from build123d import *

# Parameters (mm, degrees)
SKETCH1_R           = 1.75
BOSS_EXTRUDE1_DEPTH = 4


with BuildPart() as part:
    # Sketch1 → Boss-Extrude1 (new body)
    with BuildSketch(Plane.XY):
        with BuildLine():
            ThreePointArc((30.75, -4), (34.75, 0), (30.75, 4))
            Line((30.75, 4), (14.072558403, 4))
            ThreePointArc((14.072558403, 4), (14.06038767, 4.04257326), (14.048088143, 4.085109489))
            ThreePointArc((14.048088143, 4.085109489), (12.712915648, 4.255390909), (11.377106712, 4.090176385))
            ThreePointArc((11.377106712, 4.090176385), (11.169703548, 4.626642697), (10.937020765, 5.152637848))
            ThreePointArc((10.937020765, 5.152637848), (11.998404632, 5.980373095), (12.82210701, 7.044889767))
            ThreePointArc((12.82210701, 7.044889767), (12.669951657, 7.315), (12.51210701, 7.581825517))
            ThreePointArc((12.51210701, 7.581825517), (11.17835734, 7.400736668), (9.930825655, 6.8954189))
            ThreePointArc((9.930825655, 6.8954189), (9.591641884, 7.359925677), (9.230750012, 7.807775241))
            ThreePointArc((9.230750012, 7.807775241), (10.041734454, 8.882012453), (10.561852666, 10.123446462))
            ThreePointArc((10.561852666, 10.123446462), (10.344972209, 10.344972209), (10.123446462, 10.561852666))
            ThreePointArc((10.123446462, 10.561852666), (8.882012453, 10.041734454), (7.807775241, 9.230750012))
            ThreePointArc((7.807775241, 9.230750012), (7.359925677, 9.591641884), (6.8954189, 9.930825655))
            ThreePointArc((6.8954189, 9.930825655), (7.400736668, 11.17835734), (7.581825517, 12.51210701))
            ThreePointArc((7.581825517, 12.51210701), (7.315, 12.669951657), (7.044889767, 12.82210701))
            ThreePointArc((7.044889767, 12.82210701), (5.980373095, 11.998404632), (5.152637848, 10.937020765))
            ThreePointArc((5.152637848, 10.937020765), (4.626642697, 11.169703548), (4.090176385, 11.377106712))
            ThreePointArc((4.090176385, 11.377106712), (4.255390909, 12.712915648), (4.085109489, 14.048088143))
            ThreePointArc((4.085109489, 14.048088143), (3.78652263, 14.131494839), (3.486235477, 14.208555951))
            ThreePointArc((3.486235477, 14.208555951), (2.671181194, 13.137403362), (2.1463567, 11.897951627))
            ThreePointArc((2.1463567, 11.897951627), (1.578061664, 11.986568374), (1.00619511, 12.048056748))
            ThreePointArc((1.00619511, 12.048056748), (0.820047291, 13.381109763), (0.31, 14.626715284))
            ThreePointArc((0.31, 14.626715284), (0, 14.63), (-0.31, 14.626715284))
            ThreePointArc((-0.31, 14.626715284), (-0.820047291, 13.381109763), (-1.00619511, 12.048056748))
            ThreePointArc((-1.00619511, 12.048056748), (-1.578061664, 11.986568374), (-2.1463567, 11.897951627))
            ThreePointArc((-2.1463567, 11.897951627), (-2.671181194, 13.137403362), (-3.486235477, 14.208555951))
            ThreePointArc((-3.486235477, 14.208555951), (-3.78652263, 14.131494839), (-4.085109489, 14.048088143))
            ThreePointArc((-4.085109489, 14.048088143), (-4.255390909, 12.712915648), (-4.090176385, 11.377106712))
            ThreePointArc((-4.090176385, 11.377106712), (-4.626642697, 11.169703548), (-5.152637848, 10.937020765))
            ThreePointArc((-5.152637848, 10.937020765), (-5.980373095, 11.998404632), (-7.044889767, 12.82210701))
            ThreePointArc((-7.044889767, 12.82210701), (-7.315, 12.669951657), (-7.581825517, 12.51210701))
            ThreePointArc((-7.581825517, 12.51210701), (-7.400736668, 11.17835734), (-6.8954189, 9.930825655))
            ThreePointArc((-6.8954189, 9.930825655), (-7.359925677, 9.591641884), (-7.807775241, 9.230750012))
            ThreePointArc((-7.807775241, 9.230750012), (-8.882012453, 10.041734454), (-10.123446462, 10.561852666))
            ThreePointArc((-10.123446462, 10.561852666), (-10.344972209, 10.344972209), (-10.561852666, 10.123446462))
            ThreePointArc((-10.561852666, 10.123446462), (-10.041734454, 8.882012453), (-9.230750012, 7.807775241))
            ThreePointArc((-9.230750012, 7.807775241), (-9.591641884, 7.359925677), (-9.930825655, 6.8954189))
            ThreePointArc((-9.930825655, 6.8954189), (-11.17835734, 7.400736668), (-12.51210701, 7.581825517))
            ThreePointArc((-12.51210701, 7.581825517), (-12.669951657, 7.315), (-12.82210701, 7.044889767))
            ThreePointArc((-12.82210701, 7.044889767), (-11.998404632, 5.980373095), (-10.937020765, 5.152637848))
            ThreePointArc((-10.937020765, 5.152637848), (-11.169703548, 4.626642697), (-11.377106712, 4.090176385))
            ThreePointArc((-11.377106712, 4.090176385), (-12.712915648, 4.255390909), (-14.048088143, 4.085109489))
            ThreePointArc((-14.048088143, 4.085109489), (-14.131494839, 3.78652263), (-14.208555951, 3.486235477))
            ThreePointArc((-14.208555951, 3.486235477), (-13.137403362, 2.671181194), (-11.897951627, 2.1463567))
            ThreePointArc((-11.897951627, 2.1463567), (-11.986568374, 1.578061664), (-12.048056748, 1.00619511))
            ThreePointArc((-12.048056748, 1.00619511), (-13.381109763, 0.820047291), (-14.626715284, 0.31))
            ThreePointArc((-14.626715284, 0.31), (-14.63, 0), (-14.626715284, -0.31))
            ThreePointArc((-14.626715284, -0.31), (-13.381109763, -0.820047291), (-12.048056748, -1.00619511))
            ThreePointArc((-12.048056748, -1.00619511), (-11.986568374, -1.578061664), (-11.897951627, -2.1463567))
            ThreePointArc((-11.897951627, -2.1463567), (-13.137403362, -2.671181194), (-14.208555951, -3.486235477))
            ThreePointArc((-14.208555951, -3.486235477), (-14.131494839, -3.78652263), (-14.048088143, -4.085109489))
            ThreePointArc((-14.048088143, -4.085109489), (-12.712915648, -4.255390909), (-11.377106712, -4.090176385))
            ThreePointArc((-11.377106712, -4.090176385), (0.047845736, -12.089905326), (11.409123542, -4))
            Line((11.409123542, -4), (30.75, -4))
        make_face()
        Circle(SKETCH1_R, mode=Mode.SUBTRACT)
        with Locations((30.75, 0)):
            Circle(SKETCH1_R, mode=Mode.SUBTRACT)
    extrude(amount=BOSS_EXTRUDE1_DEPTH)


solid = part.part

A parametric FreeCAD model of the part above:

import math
import FreeCAD as App
import Part
import Sketcher

V = App.Vector
Q = App.Units.Quantity

doc = App.newDocument("Part")
body = doc.addObject("PartDesign::Body", "Body")

# Sketch on XY plane
sketch1 = body.newObject("Sketcher::SketchObject", "Sketch")
sketch1.AttachmentSupport = (doc.getObject("XY_Plane"), [""])
sketch1.MapMode = "FlatFace"
sketch1.addGeometry(Part.ArcOfCircle(Part.Circle(V(30.75, 0, 0), V(0, 0, 1), 4), math.radians(-90), math.radians(90)), False)
sketch1.addGeometry(Part.LineSegment(V(30.75, 4, 0), V(14.072558, 4, 0)), False)
sketch1.addGeometry(Part.ArcOfCircle(Part.Circle(V(-0.000108, -0.000031, 0), V(0, 0, 1), 14.630112), math.radians(15.867332), math.radians(16.214149)), False)
sketch1.addGeometry(Part.ArcOfCircle(Part.Circle(V(12.702672, -1.144599, 0), V(0, 0, 1), 5.4), math.radians(75.572711), math.radians(104.209907)), False)
sketch1.addGeometry(Part.ArcOfCircle(Part.Circle(V(0, 0, 0), V(0, 0, 1), 12.09), math.radians(19.773986), math.radians(25.226014)), False)
sketch1.addGeometry(Part.ArcOfCircle(Part.Circle(V(8.172791, 9.791499, 0), V(0, 0, 1), 5.4), math.radians(-59.209907), math.radians(-30.572711)), False)
sketch1.addGeometry(Part.ArcOfCircle(Part.Circle(V(-0.000002, -0.000001, 0), V(0, 0, 1), 14.630002), math.radians(28.78585), math.radians(31.21415)), False)
sketch1.addGeometry(Part.ArcOfCircle(Part.Circle(V(12.566083, 2.182095, 0), V(0, 0, 1), 5.4), math.radians(90.572711), math.radians(119.209907)), False)
sketch1.addGeometry(Part.ArcOfCircle(Part.Circle(V(0, 0, 0), V(0, 0, 1), 12.09), math.radians(34.773986), math.radians(40.226014)), False)
sketch1.addGeometry(Part.ArcOfCircle(Part.Circle(V(5.360084, 11.573136, 0), V(0, 0, 1), 5.4), math.radians(-44.209907), math.radians(-15.572711)), False)
sketch1.addGeometry(Part.ArcOfCircle(Part.Circle(V(0, 0, 0), V(0, 0, 1), 14.63), math.radians(43.78585), math.radians(46.21415)), False)
sketch1.addGeometry(Part.ArcOfCircle(Part.Circle(V(11.573136, 5.360084, 0), V(0, 0, 1), 5.4), math.radians(105.572711), math.radians(134.209907)), False)
sketch1.addGeometry(Part.ArcOfCircle(Part.Circle(V(0, 0, 0), V(0, 0, 1), 12.09), math.radians(49.773986), math.radians(55.226014)), False)
sketch1.addGeometry(Part.ArcOfCircle(Part.Circle(V(2.182095, 12.566083, 0), V(0, 0, 1), 5.4), math.radians(-29.209907), math.radians(-0.572711)), False)
sketch1.addGeometry(Part.ArcOfCircle(Part.Circle(V(-0.000001, -0.000002, 0), V(0, 0, 1), 14.630002), math.radians(58.78585), math.radians(61.21415)), False)
sketch1.addGeometry(Part.ArcOfCircle(Part.Circle(V(9.791499, 8.172791, 0), V(0, 0, 1), 5.4), math.radians(120.572711), math.radians(149.209907)), False)
sketch1.addGeometry(Part.ArcOfCircle(Part.Circle(V(0, 0, 0), V(0, 0, 1), 12.09), math.radians(64.773986), math.radians(70.226014)), False)
sketch1.addGeometry(Part.ArcOfCircle(Part.Circle(V(-1.144599, 12.702672, 0), V(0, 0, 1), 5.4), math.radians(-14.209907), math.radians(14.427289)), False)
sketch1.addGeometry(Part.ArcOfCircle(Part.Circle(V(0, 0, 0), V(0, 0, 1), 14.63), math.radians(73.78585), math.radians(76.21415)), False)
sketch1.addGeometry(Part.ArcOfCircle(Part.Circle(V(7.342588, 10.428537, 0), V(0, 0, 1), 5.4), math.radians(135.572711), math.radians(164.209907)), False)
sketch1.addGeometry(Part.ArcOfCircle(Part.Circle(V(0, 0, 0), V(0, 0, 1), 12.09), math.radians(79.773986), math.radians(85.226014)), False)
sketch1.addGeometry(Part.ArcOfCircle(Part.Circle(V(-4.393291, 11.973595, 0), V(0, 0, 1), 5.4), math.radians(0.790093), math.radians(29.427289)), False)
sketch1.addGeometry(Part.ArcOfCircle(Part.Circle(V(0, 0, 0), V(0, 0, 1), 14.63), math.radians(88.78585), math.radians(91.21415)), False)
sketch1.addGeometry(Part.ArcOfCircle(Part.Circle(V(4.393291, 11.973595, 0), V(0, 0, 1), 5.4), math.radians(150.572711), math.radians(179.209907)), False)
sketch1.addGeometry(Part.ArcOfCircle(Part.Circle(V(0, 0, 0), V(0, 0, 1), 12.09), math.radians(94.773986), math.radians(100.226014)), False)
sketch1.addGeometry(Part.ArcOfCircle(Part.Circle(V(-7.342588, 10.428537, 0), V(0, 0, 1), 5.4), math.radians(15.790093), math.radians(44.427289)), False)
sketch1.addGeometry(Part.ArcOfCircle(Part.Circle(V(0, 0, 0), V(0, 0, 1), 14.63), math.radians(103.78585), math.radians(106.21415)), False)
sketch1.addGeometry(Part.ArcOfCircle(Part.Circle(V(1.144599, 12.702672, 0), V(0, 0, 1), 5.4), math.radians(165.572711), math.radians(194.209907)), False)
sketch1.addGeometry(Part.ArcOfCircle(Part.Circle(V(0, 0, 0), V(0, 0, 1), 12.09), math.radians(109.773986), math.radians(115.226014)), False)
sketch1.addGeometry(Part.ArcOfCircle(Part.Circle(V(-9.791499, 8.172791, 0), V(0, 0, 1), 5.4), math.radians(30.790093), math.radians(59.427289)), False)
sketch1.addGeometry(Part.ArcOfCircle(Part.Circle(V(0.000001, -0.000002, 0), V(0, 0, 1), 14.630002), math.radians(118.78585), math.radians(121.21415)), False)
sketch1.addGeometry(Part.ArcOfCircle(Part.Circle(V(-2.182095, 12.566083, 0), V(0, 0, 1), 5.4), math.radians(-179.427289), math.radians(-150.790093)), False)
sketch1.addGeometry(Part.ArcOfCircle(Part.Circle(V(0, 0, 0), V(0, 0, 1), 12.09), math.radians(124.773986), math.radians(130.226014)), False)
sketch1.addGeometry(Part.ArcOfCircle(Part.Circle(V(-11.573136, 5.360084, 0), V(0, 0, 1), 5.4), math.radians(45.790093), math.radians(74.427289)), False)
sketch1.addGeometry(Part.ArcOfCircle(Part.Circle(V(0, 0, 0), V(0, 0, 1), 14.63), math.radians(133.78585), math.radians(136.21415)), False)
sketch1.addGeometry(Part.ArcOfCircle(Part.Circle(V(-5.360084, 11.573136, 0), V(0, 0, 1), 5.4), math.radians(-164.427289), math.radians(-135.790093)), False)
sketch1.addGeometry(Part.ArcOfCircle(Part.Circle(V(0, 0, 0), V(0, 0, 1), 12.09), math.radians(139.773986), math.radians(145.226014)), False)
sketch1.addGeometry(Part.ArcOfCircle(Part.Circle(V(-12.566083, 2.182095, 0), V(0, 0, 1), 5.4), math.radians(60.790093), math.radians(89.427289)), False)
sketch1.addGeometry(Part.ArcOfCircle(Part.Circle(V(0.000002, -0.000001, 0), V(0, 0, 1), 14.630002), math.radians(148.78585), math.radians(151.21415)), False)
sketch1.addGeometry(Part.ArcOfCircle(Part.Circle(V(-8.172791, 9.791499, 0), V(0, 0, 1), 5.4), math.radians(-149.427289), math.radians(-120.790093)), False)
sketch1.addGeometry(Part.ArcOfCircle(Part.Circle(V(0, 0, 0), V(0, 0, 1), 12.09), math.radians(154.773986), math.radians(160.226014)), False)
sketch1.addGeometry(Part.ArcOfCircle(Part.Circle(V(-12.702672, -1.144599, 0), V(0, 0, 1), 5.4), math.radians(75.790093), math.radians(104.427289)), False)
sketch1.addGeometry(Part.ArcOfCircle(Part.Circle(V(0, 0, 0), V(0, 0, 1), 14.63), math.radians(163.78585), math.radians(166.21415)), False)
sketch1.addGeometry(Part.ArcOfCircle(Part.Circle(V(-10.428537, 7.342588, 0), V(0, 0, 1), 5.4), math.radians(-134.427289), math.radians(-105.790093)), False)
sketch1.addGeometry(Part.ArcOfCircle(Part.Circle(V(0, 0, 0), V(0, 0, 1), 12.09), math.radians(169.773986), math.radians(175.226014)), False)
sketch1.addGeometry(Part.ArcOfCircle(Part.Circle(V(-11.973595, -4.393291, 0), V(0, 0, 1), 5.4), math.radians(90.790093), math.radians(119.427289)), False)
sketch1.addGeometry(Part.ArcOfCircle(Part.Circle(V(0, 0, 0), V(0, 0, 1), 14.63), math.radians(178.78585), math.radians(181.21415)), False)
sketch1.addGeometry(Part.ArcOfCircle(Part.Circle(V(-11.973595, 4.393291, 0), V(0, 0, 1), 5.4), math.radians(-119.427289), math.radians(-90.790093)), False)
sketch1.addGeometry(Part.ArcOfCircle(Part.Circle(V(0, 0, 0), V(0, 0, 1), 12.09), math.radians(-175.226014), math.radians(-169.773986)), False)
sketch1.addGeometry(Part.ArcOfCircle(Part.Circle(V(-10.428537, -7.342588, 0), V(0, 0, 1), 5.4), math.radians(105.790093), math.radians(134.427289)), False)
sketch1.addGeometry(Part.ArcOfCircle(Part.Circle(V(0, 0, 0), V(0, 0, 1), 14.63), math.radians(-166.21415), math.radians(-163.78585)), False)
sketch1.addGeometry(Part.ArcOfCircle(Part.Circle(V(-12.702672, 1.144599, 0), V(0, 0, 1), 5.4), math.radians(-104.427289), math.radians(-75.790093)), False)
sketch1.addGeometry(Part.ArcOfCircle(Part.Circle(V(0, 0, 0), V(0, 0, 1), 12.09), math.radians(-160.226014), math.radians(-19.320493)), False)
sketch1.addGeometry(Part.LineSegment(V(11.409124, -4, 0), V(30.75, -4, 0)), False)
sketch1.addGeometry(Part.Circle(V(0, 0, 0), V(0, 0, 1), 1.75), False)
sketch1.addGeometry(Part.Circle(V(30.75, 0, 0), V(0, 0, 1), 1.75), False)
sketch1.addConstraint(Sketcher.Constraint("Coincident", 0, 2, 1, 1))
sketch1.addConstraint(Sketcher.Constraint("Coincident", 1, 2, 2, 1))
sketch1.addConstraint(Sketcher.Constraint("Coincident", 2, 2, 3, 1))
sketch1.addConstraint(Sketcher.Constraint("Coincident", 3, 2, 4, 1))
sketch1.addConstraint(Sketcher.Constraint("Coincident", 4, 2, 5, 1))
sketch1.addConstraint(Sketcher.Constraint("Coincident", 5, 2, 6, 1))
sketch1.addConstraint(Sketcher.Constraint("Coincident", 6, 2, 7, 1))
sketch1.addConstraint(Sketcher.Constraint("Coincident", 7, 2, 8, 1))
sketch1.addConstraint(Sketcher.Constraint("Coincident", 8, 2, 9, 1))
sketch1.addConstraint(Sketcher.Constraint("Coincident", 9, 2, 10, 1))
sketch1.addConstraint(Sketcher.Constraint("Coincident", 10, 2, 11, 1))
sketch1.addConstraint(Sketcher.Constraint("Coincident", 11, 2, 12, 1))
sketch1.addConstraint(Sketcher.Constraint("Coincident", 12, 2, 13, 1))
sketch1.addConstraint(Sketcher.Constraint("Coincident", 13, 2, 14, 1))
sketch1.addConstraint(Sketcher.Constraint("Coincident", 14, 2, 15, 1))
sketch1.addConstraint(Sketcher.Constraint("Coincident", 15, 2, 16, 1))
sketch1.addConstraint(Sketcher.Constraint("Coincident", 16, 2, 17, 1))
sketch1.addConstraint(Sketcher.Constraint("Coincident", 17, 2, 18, 1))
sketch1.addConstraint(Sketcher.Constraint("Coincident", 18, 2, 19, 1))
sketch1.addConstraint(Sketcher.Constraint("Coincident", 19, 2, 20, 1))
sketch1.addConstraint(Sketcher.Constraint("Coincident", 20, 2, 21, 1))
sketch1.addConstraint(Sketcher.Constraint("Coincident", 21, 2, 22, 1))
sketch1.addConstraint(Sketcher.Constraint("Coincident", 22, 2, 23, 1))
sketch1.addConstraint(Sketcher.Constraint("Coincident", 23, 2, 24, 1))
sketch1.addConstraint(Sketcher.Constraint("Coincident", 24, 2, 25, 1))
sketch1.addConstraint(Sketcher.Constraint("Coincident", 25, 2, 26, 1))
sketch1.addConstraint(Sketcher.Constraint("Coincident", 26, 2, 27, 1))
sketch1.addConstraint(Sketcher.Constraint("Coincident", 27, 2, 28, 1))
sketch1.addConstraint(Sketcher.Constraint("Coincident", 28, 2, 29, 1))
sketch1.addConstraint(Sketcher.Constraint("Coincident", 29, 2, 30, 1))
sketch1.addConstraint(Sketcher.Constraint("Coincident", 30, 2, 31, 1))
sketch1.addConstraint(Sketcher.Constraint("Coincident", 31, 2, 32, 1))
sketch1.addConstraint(Sketcher.Constraint("Coincident", 32, 2, 33, 1))
sketch1.addConstraint(Sketcher.Constraint("Coincident", 33, 2, 34, 1))
sketch1.addConstraint(Sketcher.Constraint("Coincident", 34, 2, 35, 1))
sketch1.addConstraint(Sketcher.Constraint("Coincident", 35, 2, 36, 1))
sketch1.addConstraint(Sketcher.Constraint("Coincident", 36, 2, 37, 1))
sketch1.addConstraint(Sketcher.Constraint("Coincident", 37, 2, 38, 1))
sketch1.addConstraint(Sketcher.Constraint("Coincident", 38, 2, 39, 1))
sketch1.addConstraint(Sketcher.Constraint("Coincident", 39, 2, 40, 1))
sketch1.addConstraint(Sketcher.Constraint("Coincident", 40, 2, 41, 1))
sketch1.addConstraint(Sketcher.Constraint("Coincident", 41, 2, 42, 1))
sketch1.addConstraint(Sketcher.Constraint("Coincident", 42, 2, 43, 1))
sketch1.addConstraint(Sketcher.Constraint("Coincident", 43, 2, 44, 1))
sketch1.addConstraint(Sketcher.Constraint("Coincident", 44, 2, 45, 1))
sketch1.addConstraint(Sketcher.Constraint("Coincident", 45, 2, 46, 1))
sketch1.addConstraint(Sketcher.Constraint("Coincident", 46, 2, 47, 1))
sketch1.addConstraint(Sketcher.Constraint("Coincident", 47, 2, 48, 1))
sketch1.addConstraint(Sketcher.Constraint("Coincident", 48, 2, 49, 1))
sketch1.addConstraint(Sketcher.Constraint("Coincident", 49, 2, 50, 1))
sketch1.addConstraint(Sketcher.Constraint("Coincident", 50, 2, 51, 1))
sketch1.addConstraint(Sketcher.Constraint("Coincident", 51, 2, 52, 1))
sketch1.addConstraint(Sketcher.Constraint("Coincident", 52, 2, 53, 1))
sketch1.addConstraint(Sketcher.Constraint("Coincident", 53, 2, 0, 1))
sketch1.addConstraint(Sketcher.Constraint("Horizontal", 1))
sketch1.addConstraint(Sketcher.Constraint("Horizontal", 53))
sketch1.addConstraint(Sketcher.Constraint("Coincident", 4, 3, -1, 1))
sketch1.addConstraint(Sketcher.Constraint("Coincident", 6, 3, -1, 1))
sketch1.addConstraint(Sketcher.Constraint("Coincident", 8, 3, -1, 1))
sketch1.addConstraint(Sketcher.Constraint("Coincident", 10, 3, -1, 1))
sketch1.addConstraint(Sketcher.Constraint("Coincident", 12, 3, -1, 1))
sketch1.addConstraint(Sketcher.Constraint("Coincident", 14, 3, -1, 1))
sketch1.addConstraint(Sketcher.Constraint("Coincident", 16, 3, -1, 1))
sketch1.addConstraint(Sketcher.Constraint("Coincident", 18, 3, -1, 1))
sketch1.addConstraint(Sketcher.Constraint("Coincident", 20, 3, -1, 1))
sketch1.addConstraint(Sketcher.Constraint("Coincident", 22, 3, -1, 1))
sketch1.addConstraint(Sketcher.Constraint("Coincident", 24, 3, -1, 1))
sketch1.addConstraint(Sketcher.Constraint("Coincident", 26, 3, -1, 1))
sketch1.addConstraint(Sketcher.Constraint("Coincident", 28, 3, -1, 1))
sketch1.addConstraint(Sketcher.Constraint("Coincident", 30, 3, -1, 1))
sketch1.addConstraint(Sketcher.Constraint("Coincident", 32, 3, -1, 1))
sketch1.addConstraint(Sketcher.Constraint("Coincident", 34, 3, -1, 1))
sketch1.addConstraint(Sketcher.Constraint("Coincident", 36, 3, -1, 1))
sketch1.addConstraint(Sketcher.Constraint("Coincident", 38, 3, -1, 1))
sketch1.addConstraint(Sketcher.Constraint("Coincident", 40, 3, -1, 1))
sketch1.addConstraint(Sketcher.Constraint("Coincident", 42, 3, -1, 1))
sketch1.addConstraint(Sketcher.Constraint("Coincident", 44, 3, -1, 1))
sketch1.addConstraint(Sketcher.Constraint("Coincident", 46, 3, -1, 1))
sketch1.addConstraint(Sketcher.Constraint("Coincident", 48, 3, -1, 1))
sketch1.addConstraint(Sketcher.Constraint("Coincident", 50, 3, -1, 1))
sketch1.addConstraint(Sketcher.Constraint("Coincident", 52, 3, -1, 1))
sketch1.addConstraint(Sketcher.Constraint("Coincident", 54, 3, -1, 1))
sketch1.addConstraint(Sketcher.Constraint("Coincident", 55, 3, 0, 3))
sketch1.addConstraint(Sketcher.Constraint("PointOnObject", 0, 3, -1))
sketch1.addConstraint(Sketcher.Constraint("Radius", 0, Q("4 mm")))
sketch1.addConstraint(Sketcher.Constraint("Diameter", 54, Q("3.5 mm")))
sketch1.addConstraint(Sketcher.Constraint("Diameter", 55, Q("3.5 mm")))
sketch1.addConstraint(Sketcher.Constraint("Radius", 3, Q("5.4 mm")))
sketch1.addConstraint(Sketcher.Constraint("Radius", 5, Q("5.4 mm")))
sketch1.addConstraint(Sketcher.Constraint("Radius", 7, Q("5.4 mm")))
sketch1.addConstraint(Sketcher.Constraint("Radius", 9, Q("5.4 mm")))
sketch1.addConstraint(Sketcher.Constraint("Radius", 11, Q("5.4 mm")))
sketch1.addConstraint(Sketcher.Constraint("Radius", 13, Q("5.4 mm")))
sketch1.addConstraint(Sketcher.Constraint("Radius", 15, Q("5.4 mm")))
sketch1.addConstraint(Sketcher.Constraint("Radius", 17, Q("5.4 mm")))
sketch1.addConstraint(Sketcher.Constraint("Radius", 19, Q("5.4 mm")))
sketch1.addConstraint(Sketcher.Constraint("Radius", 21, Q("5.4 mm")))
sketch1.addConstraint(Sketcher.Constraint("Radius", 23, Q("5.4 mm")))
sketch1.addConstraint(Sketcher.Constraint("Radius", 25, Q("5.4 mm")))
sketch1.addConstraint(Sketcher.Constraint("Radius", 27, Q("5.4 mm")))
sketch1.addConstraint(Sketcher.Constraint("Radius", 29, Q("5.4 mm")))
sketch1.addConstraint(Sketcher.Constraint("Radius", 31, Q("5.4 mm")))
sketch1.addConstraint(Sketcher.Constraint("Radius", 33, Q("5.4 mm")))
sketch1.addConstraint(Sketcher.Constraint("Radius", 35, Q("5.4 mm")))
sketch1.addConstraint(Sketcher.Constraint("Radius", 37, Q("5.4 mm")))
sketch1.addConstraint(Sketcher.Constraint("Radius", 39, Q("5.4 mm")))
sketch1.addConstraint(Sketcher.Constraint("Radius", 41, Q("5.4 mm")))
sketch1.addConstraint(Sketcher.Constraint("Radius", 43, Q("5.4 mm")))
sketch1.addConstraint(Sketcher.Constraint("Radius", 45, Q("5.4 mm")))
sketch1.addConstraint(Sketcher.Constraint("Radius", 47, Q("5.4 mm")))
sketch1.addConstraint(Sketcher.Constraint("Radius", 49, Q("5.4 mm")))
sketch1.addConstraint(Sketcher.Constraint("Radius", 51, Q("5.4 mm")))
sketch1.addConstraint(Sketcher.Constraint("Radius", 4, Q("12.09 mm")))
sketch1.addConstraint(Sketcher.Constraint("Radius", 6, Q("14.630002 mm")))
sketch1.addConstraint(Sketcher.Constraint("Radius", 8, Q("12.09 mm")))
sketch1.addConstraint(Sketcher.Constraint("Radius", 10, Q("14.63 mm")))
sketch1.addConstraint(Sketcher.Constraint("Radius", 12, Q("12.09 mm")))
sketch1.addConstraint(Sketcher.Constraint("Radius", 14, Q("14.630002 mm")))
sketch1.addConstraint(Sketcher.Constraint("Radius", 16, Q("12.09 mm")))
sketch1.addConstraint(Sketcher.Constraint("Radius", 18, Q("14.63 mm")))
sketch1.addConstraint(Sketcher.Constraint("Radius", 20, Q("12.09 mm")))
sketch1.addConstraint(Sketcher.Constraint("Radius", 22, Q("14.63 mm")))
sketch1.addConstraint(Sketcher.Constraint("Radius", 24, Q("12.09 mm")))
sketch1.addConstraint(Sketcher.Constraint("Radius", 26, Q("14.63 mm")))
sketch1.addConstraint(Sketcher.Constraint("Radius", 28, Q("12.09 mm")))
sketch1.addConstraint(Sketcher.Constraint("Radius", 30, Q("14.630002 mm")))
sketch1.addConstraint(Sketcher.Constraint("Radius", 32, Q("12.09 mm")))
sketch1.addConstraint(Sketcher.Constraint("Radius", 34, Q("14.63 mm")))
sketch1.addConstraint(Sketcher.Constraint("Radius", 36, Q("12.09 mm")))
sketch1.addConstraint(Sketcher.Constraint("Radius", 38, Q("14.630002 mm")))
sketch1.addConstraint(Sketcher.Constraint("Radius", 40, Q("12.09 mm")))
sketch1.addConstraint(Sketcher.Constraint("Radius", 42, Q("14.63 mm")))
sketch1.addConstraint(Sketcher.Constraint("Radius", 44, Q("12.09 mm")))
sketch1.addConstraint(Sketcher.Constraint("Radius", 46, Q("14.63 mm")))
sketch1.addConstraint(Sketcher.Constraint("Radius", 48, Q("12.09 mm")))
sketch1.addConstraint(Sketcher.Constraint("Radius", 50, Q("14.63 mm")))
sketch1.addConstraint(Sketcher.Constraint("Radius", 52, Q("12.09 mm")))
sketch1.addConstraint(Sketcher.Constraint("DistanceX", -1, 1, 0, 3, Q("30.75 mm")))
sketch1.addConstraint(Sketcher.Constraint("DistanceX", -1, 1, 0, 2, Q("30.75 mm")))
sketch1.addConstraint(Sketcher.Constraint("DistanceX", -1, 1, 21, 2, Q("0.31 mm")))
sketch1.addConstraint(Sketcher.Constraint("DistanceX", 22, 2, -1, 1, Q("0.31 mm")))
sketch1.addConstraint(Sketcher.Constraint("DistanceY", -1, 1, 45, 2, Q("0.31 mm")))
sketch1.addConstraint(Sketcher.Constraint("DistanceY", 46, 2, -1, 1, Q("0.31 mm")))
sketch1.addConstraint(Sketcher.Constraint("DistanceX", -1, 1, 53, 2, Q("30.75 mm")))
sketch1.addConstraint(Sketcher.Constraint("Radius", 2, Q("14.630112 mm")))
sketch1.addConstraint(Sketcher.Constraint("DistanceX", 1, 2, 1, 1, Q("16.677442 mm")))
sketch1.addConstraint(Sketcher.Constraint("DistanceY", 3, 3, -1, 1, Q("1.144599 mm")))
sketch1.addConstraint(Sketcher.Constraint("DistanceY", -1, 1, 5, 3, Q("9.791499 mm")))
sketch1.addConstraint(Sketcher.Constraint("DistanceX", -1, 1, 15, 3, Q("9.791499 mm")))
sketch1.addConstraint(Sketcher.Constraint("DistanceX", 17, 3, -1, 1, Q("1.144599 mm")))
sketch1.addConstraint(Sketcher.Constraint("DistanceX", -1, 1, 27, 3, Q("1.144599 mm")))
sketch1.addConstraint(Sketcher.Constraint("DistanceX", 29, 3, -1, 1, Q("9.791499 mm")))
sketch1.addConstraint(Sketcher.Constraint("DistanceY", -1, 1, 39, 3, Q("9.791499 mm")))
sketch1.addConstraint(Sketcher.Constraint("DistanceY", 41, 3, -1, 1, Q("1.144599 mm")))
sketch1.addConstraint(Sketcher.Constraint("DistanceY", -1, 1, 51, 3, Q("1.144599 mm")))
sketch1.addConstraint(Sketcher.Constraint("DistanceX", 2, 3, -1, 1, Q("0.000108 mm")))
sketch1.addConstraint(Sketcher.Constraint("DistanceX", -1, 1, 3, 3, Q("12.702672 mm")))
sketch1.addConstraint(Sketcher.Constraint("DistanceX", -1, 1, 5, 3, Q("8.172791 mm")))
sketch1.addConstraint(Sketcher.Constraint("DistanceY", -1, 1, 15, 3, Q("8.172791 mm")))
sketch1.addConstraint(Sketcher.Constraint("DistanceY", -1, 1, 17, 3, Q("12.702672 mm")))
sketch1.addConstraint(Sketcher.Constraint("DistanceX", -1, 1, 19, 3, Q("7.342588 mm")))
sketch1.addConstraint(Sketcher.Constraint("DistanceX", 21, 3, -1, 1, Q("4.393291 mm")))
sketch1.addConstraint(Sketcher.Constraint("DistanceX", -1, 1, 23, 3, Q("4.393291 mm")))
sketch1.addConstraint(Sketcher.Constraint("DistanceX", 25, 3, -1, 1, Q("7.342588 mm")))
sketch1.addConstraint(Sketcher.Constraint("DistanceY", -1, 1, 27, 3, Q("12.702672 mm")))
sketch1.addConstraint(Sketcher.Constraint("DistanceY", -1, 1, 29, 3, Q("8.172791 mm")))
sketch1.addConstraint(Sketcher.Constraint("DistanceX", 39, 3, -1, 1, Q("8.172791 mm")))
sketch1.addConstraint(Sketcher.Constraint("DistanceX", 41, 3, -1, 1, Q("12.702672 mm")))
sketch1.addConstraint(Sketcher.Constraint("DistanceY", -1, 1, 43, 3, Q("7.342588 mm")))
sketch1.addConstraint(Sketcher.Constraint("DistanceY", 45, 3, -1, 1, Q("4.393291 mm")))
sketch1.addConstraint(Sketcher.Constraint("DistanceY", -1, 1, 47, 3, Q("4.393291 mm")))
sketch1.addConstraint(Sketcher.Constraint("DistanceY", 49, 3, -1, 1, Q("7.342588 mm")))
sketch1.addConstraint(Sketcher.Constraint("DistanceX", 51, 3, -1, 1, Q("12.702672 mm")))
sketch1.addConstraint(Sketcher.Constraint("DistanceY", -1, 1, 7, 2, Q("6.895419 mm")))
sketch1.addConstraint(Sketcher.Constraint("DistanceX", -1, 1, 8, 2, Q("9.23075 mm")))
sketch1.addConstraint(Sketcher.Constraint("DistanceY", -1, 1, 11, 2, Q("9.23075 mm")))
sketch1.addConstraint(Sketcher.Constraint("DistanceX", -1, 1, 12, 2, Q("6.895419 mm")))
sketch1.addConstraint(Sketcher.Constraint("DistanceY", -1, 1, 19, 2, Q("11.897952 mm")))
sketch1.addConstraint(Sketcher.Constraint("DistanceY", -1, 1, 24, 2, Q("11.897952 mm")))
sketch1.addConstraint(Sketcher.Constraint("DistanceX", 31, 2, -1, 1, Q("6.895419 mm")))
sketch1.addConstraint(Sketcher.Constraint("DistanceY", -1, 1, 32, 2, Q("9.23075 mm")))
sketch1.addConstraint(Sketcher.Constraint("DistanceX", 35, 2, -1, 1, Q("9.23075 mm")))
sketch1.addConstraint(Sketcher.Constraint("DistanceY", -1, 1, 36, 2, Q("6.895419 mm")))
sketch1.addConstraint(Sketcher.Constraint("DistanceX", 43, 2, -1, 1, Q("11.897952 mm")))
sketch1.addConstraint(Sketcher.Constraint("DistanceX", 48, 2, -1, 1, Q("11.897952 mm")))
sketch1.addConstraint(Sketcher.Constraint("DistanceX", -1, 1, 7, 3, Q("12.566083 mm")))
sketch1.addConstraint(Sketcher.Constraint("DistanceX", -1, 1, 9, 3, Q("5.360084 mm")))
sketch1.addConstraint(Sketcher.Constraint("DistanceX", -1, 1, 11, 3, Q("11.573136 mm")))
sketch1.addConstraint(Sketcher.Constraint("DistanceX", -1, 1, 13, 3, Q("2.182095 mm")))
sketch1.addConstraint(Sketcher.Constraint("DistanceX", 31, 3, -1, 1, Q("2.182095 mm")))
sketch1.addConstraint(Sketcher.Constraint("DistanceX", 33, 3, -1, 1, Q("11.573136 mm")))
sketch1.addConstraint(Sketcher.Constraint("DistanceX", 35, 3, -1, 1, Q("5.360084 mm")))
sketch1.addConstraint(Sketcher.Constraint("DistanceX", 37, 3, -1, 1, Q("12.566083 mm")))
pad1 = body.newObject("PartDesign::Pad", "Pad")
pad1.Profile = sketch1
pad1.Length = 4

doc.recompute()
